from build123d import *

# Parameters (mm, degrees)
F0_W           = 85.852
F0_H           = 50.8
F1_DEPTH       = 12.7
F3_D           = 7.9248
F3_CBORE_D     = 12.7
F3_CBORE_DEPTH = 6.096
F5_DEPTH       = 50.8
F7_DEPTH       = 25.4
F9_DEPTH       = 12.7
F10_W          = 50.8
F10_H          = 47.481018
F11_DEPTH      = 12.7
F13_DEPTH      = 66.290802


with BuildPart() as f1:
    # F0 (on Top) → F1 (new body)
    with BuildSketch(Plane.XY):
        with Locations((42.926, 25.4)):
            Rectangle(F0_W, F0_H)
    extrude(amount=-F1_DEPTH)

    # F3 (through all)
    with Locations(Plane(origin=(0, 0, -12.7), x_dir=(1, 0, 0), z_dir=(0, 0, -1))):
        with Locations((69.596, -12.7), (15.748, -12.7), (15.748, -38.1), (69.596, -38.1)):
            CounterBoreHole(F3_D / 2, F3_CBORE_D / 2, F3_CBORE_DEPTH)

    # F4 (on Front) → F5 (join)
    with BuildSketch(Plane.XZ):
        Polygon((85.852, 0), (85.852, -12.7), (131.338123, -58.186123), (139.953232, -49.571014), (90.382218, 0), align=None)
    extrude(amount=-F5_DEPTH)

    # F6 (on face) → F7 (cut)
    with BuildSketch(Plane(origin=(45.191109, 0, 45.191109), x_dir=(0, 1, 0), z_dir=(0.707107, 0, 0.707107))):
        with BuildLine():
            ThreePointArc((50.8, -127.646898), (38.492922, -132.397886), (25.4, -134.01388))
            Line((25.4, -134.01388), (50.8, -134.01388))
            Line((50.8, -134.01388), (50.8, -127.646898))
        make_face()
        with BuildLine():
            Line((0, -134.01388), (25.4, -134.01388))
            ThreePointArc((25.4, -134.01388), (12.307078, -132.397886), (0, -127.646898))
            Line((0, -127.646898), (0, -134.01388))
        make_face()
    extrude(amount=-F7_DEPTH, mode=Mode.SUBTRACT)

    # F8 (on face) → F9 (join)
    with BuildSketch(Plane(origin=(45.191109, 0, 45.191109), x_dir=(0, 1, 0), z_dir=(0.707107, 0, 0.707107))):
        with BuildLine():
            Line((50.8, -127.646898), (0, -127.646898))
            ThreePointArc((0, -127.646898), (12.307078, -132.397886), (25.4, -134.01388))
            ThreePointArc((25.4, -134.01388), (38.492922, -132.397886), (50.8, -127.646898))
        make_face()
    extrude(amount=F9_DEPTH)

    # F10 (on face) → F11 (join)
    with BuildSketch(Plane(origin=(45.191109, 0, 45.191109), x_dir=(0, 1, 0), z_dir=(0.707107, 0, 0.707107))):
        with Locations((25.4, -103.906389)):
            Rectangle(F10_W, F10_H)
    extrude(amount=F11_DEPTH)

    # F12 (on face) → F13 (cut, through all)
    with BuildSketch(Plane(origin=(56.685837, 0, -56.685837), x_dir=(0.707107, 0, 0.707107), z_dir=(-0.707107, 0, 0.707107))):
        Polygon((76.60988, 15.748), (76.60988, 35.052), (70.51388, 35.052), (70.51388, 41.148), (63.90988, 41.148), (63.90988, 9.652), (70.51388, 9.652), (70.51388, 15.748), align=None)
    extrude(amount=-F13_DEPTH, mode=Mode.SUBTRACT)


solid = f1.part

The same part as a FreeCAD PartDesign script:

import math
import FreeCAD as App
import Part
import Sketcher
Q = App.Units.Quantity

doc = App.newDocument("Part")
params = doc.addObject("Spreadsheet::Sheet", "Params")
for row, (alias, value) in enumerate([
    ("sketch1_height", "2 in"),
    ("sketch1_width", "3.38 in"),
    ("pad1_length", "0.5 in"),
    ("sketch2_diameter", "0.312 in"),
    ("hole_diameter", "0.312 in"),
    ("hole_cbore_diameter", "0.5 in"),
    ("hole_cbore_depth", "0.24 in"),
    ("sketch3_height", "0.5 in"),
    ("sketch3_length", "2.76 in"),
    ("pad2_length", "2 in"),
    ("sketch4_width", "1 in"),
    ("pocket1_length", "1 in"),
    ("sketch5_width", "2 in"),
    ("pad3_length", "0.5 in"),
    ("sketch6_width", "2 in"),
    ("pad4_length", "0.5 in"),
    ("sketch7_width", "0.24 in"),
    ("sketch7_width2", "0.26 in"),
], start=1):
    params.set(f"A{row}", alias)
    params.set(f"B{row}", "=" + value)
    params.setAlias(f"B{row}", alias)

body = doc.addObject("PartDesign::Body", "Body")

sketch1 = doc.addObject("Sketcher::SketchObject", "Sketch")
body.addObject(sketch1)
sketch1.AttachmentSupport = (doc.XY_Plane, [""])
sketch1.MapMode = "FlatFace"
sketch1.addGeometry(Part.LineSegment(App.Vector(0, 51, 0), App.Vector(0, 0, 0)), False)
sketch1.addGeometry(Part.LineSegment(App.Vector(0, 0, 0), App.Vector(86, 0, 0)), False)
sketch1.addGeometry(Part.LineSegment(App.Vector(86, 0, 0), App.Vector(86, 51, 0)), False)
sketch1.addGeometry(Part.LineSegment(App.Vector(86, 51, 0), App.Vector(0, 51, 0)), False)
sketch1.addConstraint(Sketcher.Constraint("Coincident", 0, 2, 1, 1))
sketch1.addConstraint(Sketcher.Constraint("Coincident", 1, 2, 2, 1))
sketch1.addConstraint(Sketcher.Constraint("Coincident", 2, 2, 3, 1))
sketch1.addConstraint(Sketcher.Constraint("Coincident", 3, 2, 0, 1))
sketch1.addConstraint(Sketcher.Constraint("Vertical", 0))
sketch1.addConstraint(Sketcher.Constraint("Horizontal", 1))
sketch1.addConstraint(Sketcher.Constraint("Vertical", 2))
sketch1.addConstraint(Sketcher.Constraint("Horizontal", 3))
sketch1.addConstraint(Sketcher.Constraint("Coincident", 0, 2, -1, 1))
sketch1.addConstraint(Sketcher.Constraint("DistanceY", 0, 2, 0, 1, Q("2 in")))
sketch1.addConstraint(Sketcher.Constraint("DistanceX", 1, 1, 1, 2, Q("3.38 in")))
sketch1.setExpression("Constraints[9]", "Params.sketch1_height")
sketch1.setExpression("Constraints[10]", "Params.sketch1_width")
pad1 = doc.addObject("PartDesign::Pad", "Pad")
body.addObject(pad1)
pad1.Profile = sketch1
pad1.setExpression("Length", "Params.pad1_length")
pad1.Reversed = True

sketch2 = doc.addObject("Sketcher::SketchObject", "Sketch001")
body.addObject(sketch2)
sketch2.AttachmentSupport = (doc.XY_Plane, [""])
sketch2.MapMode = "FlatFace"
sketch2.AttachmentOffset = App.Placement(App.Vector(0, 0, -0.5 * 25.4), App.Rotation())
sketch2.addGeometry(Part.Circle(App.Vector(69.6, 12.7, 0), App.Vector(0, 0, 1), 4), False)
sketch2.addGeometry(Part.Circle(App.Vector(15.7, 12.7, 0), App.Vector(0, 0, 1), 4), False)
sketch2.addGeometry(Part.Circle(App.Vector(15.7, 38.1, 0), App.Vector(0, 0, 1), 4), False)
sketch2.addGeometry(Part.Circle(App.Vector(69.6, 38.1, 0), App.Vector(0, 0, 1), 4), False)
sketch2.addConstraint(Sketcher.Constraint("Equal", 0, 1))
sketch2.addConstraint(Sketcher.Constraint("Equal", 1, 2))
sketch2.addConstraint(Sketcher.Constraint("Equal", 2, 3))
sketch2.addConstraint(Sketcher.Constraint("Horizontal", 0, 3, 1, 3))
sketch2.addConstraint(Sketcher.Constraint("Horizontal", 2, 3, 3, 3))
sketch2.addConstraint(Sketcher.Constraint("Vertical", 1, 3, 2, 3))
sketch2.addConstraint(Sketcher.Constraint("Vertical", 0, 3, 3, 3))
sketch2.addConstraint(Sketcher.Constraint("Diameter", 0, Q("0.312 in")))
sketch2.addConstraint(Sketcher.Constraint("DistanceY", 1, 3, 2, 3, Q("1 in")))
sketch2.addConstraint(Sketcher.Constraint("DistanceY", -1, 1, 0, 3, Q("0.5 in")))
sketch2.addConstraint(Sketcher.Constraint("DistanceX", -1, 1, 0, 3, Q("2.74 in")))
sketch2.addConstraint(Sketcher.Constraint("DistanceX", -1, 1, 1, 3, Q("0.62 in")))
sketch2.setExpression("Constraints[7]", "Params.sketch2_diameter")
doc.recompute()
hole = doc.addObject("PartDesign::Hole", "Hole")
body.addObject(hole)
hole.Profile = sketch2
hole.ThreadType = "None"
hole.setExpression("Diameter", "Params.hole_diameter")
hole.DepthType = "ThroughAll"
hole.HoleCutType = "Counterbore"
hole.setExpression("HoleCutDiameter", "Params.hole_cbore_diameter")
hole.setExpression("HoleCutDepth", "Params.hole_cbore_depth")
hole.Reversed = True

sketch3 = doc.addObject("Sketcher::SketchObject", "Sketch002")
body.addObject(sketch3)
sketch3.AttachmentSupport = (doc.XZ_Plane, [""])
sketch3.MapMode = "FlatFace"
sketch3.addGeometry(Part.LineSegment(App.Vector(85.9, 0, 0), App.Vector(85.9, -12.7, 0)), False)
sketch3.addGeometry(Part.LineSegment(App.Vector(85.9, -12.7, 0), App.Vector(131.3, -58.2, 0)), False)
sketch3.addGeometry(Part.LineSegment(App.Vector(131.3, -58.2, 0), App.Vector(140, -49.6, 0)), False)
sketch3.addGeometry(Part.LineSegment(App.Vector(140, -49.6, 0), App.Vector(90.4, 0, 0)), False)
sketch3.addGeometry(Part.LineSegment(App.Vector(90.4, 0, 0), App.Vector(85.9, 0, 0)), False)
sketch3.addConstraint(Sketcher.Constraint("Coincident", 0, 2, 1, 1))
sketch3.addConstraint(Sketcher.Constraint("Coincident", 1, 2, 2, 1))
sketch3.addConstraint(Sketcher.Constraint("Coincident", 2, 2, 3, 1))
sketch3.addConstraint(Sketcher.Constraint("Coincident", 3, 2, 4, 1))
sketch3.addConstraint(Sketcher.Constraint("Coincident", 4, 2, 0, 1))
sketch3.addConstraint(Sketcher.Constraint("Vertical", 0))
sketch3.addConstraint(Sketcher.Constraint("Horizontal", 4))
sketch3.addConstraint(Sketcher.Constraint("PointOnObject", 3, 2, -1))
sketch3.addConstraint(Sketcher.Constraint("Perpendicular", 1, 2))
sketch3.addConstraint(Sketcher.Constraint("Perpendicular", 2, 3))
sketch3.addConstraint(Sketcher.Constraint("DistanceY", 0, 2, 0, 1, Q("0.5 in")))
sketch3.addConstraint(Sketcher.Constraint("Angle", 1, Q("-45 deg")))
sketch3.addConstraint(Sketcher.Constraint("Distance", 3, Q("2.76 in")))
sketch3.addConstraint(Sketcher.Constraint("DistanceX", -1, 1, 0, 2, Q("3.38 in")))
sketch3.addConstraint(Sketcher.Constraint("DistanceX", 4, 2, 4, 1, Q("4.530218 mm")))
sketch3.setExpression("Constraints[10]", "Params.sketch3_height")
sketch3.setExpression("Constraints[12]", "Params.sketch3_length")
pad2 = doc.addObject("PartDesign::Pad", "Pad001")
body.addObject(pad2)
pad2.Profile = sketch3
pad2.setExpression("Length", "Params.pad2_length")
pad2.Reversed = True

sketch4 = doc.addObject("Sketcher::SketchObject", "Sketch003")
body.addObject(sketch4)
sketch4.Placement = App.Placement(App.Vector(45.191109, 0, 45.191109), App.Rotation(App.Vector(0, 1, 0), App.Vector(-0.707106781, 0, 0.707106781), App.Vector(0.707106781, 0, 0.707106781), "ZXY"))
sketch4.addGeometry(Part.ArcOfCircle(Part.Circle(App.Vector(25, -80, 0), App.Vector(0, 0, 1), 54), math.radians(-90), math.radians(-62)), False)
sketch4.addGeometry(Part.LineSegment(App.Vector(25, -134, 0), App.Vector(51, -134, 0)), False)
sketch4.addGeometry(Part.LineSegment(App.Vector(51, -134, 0), App.Vector(51, -128, 0)), False)
sketch4.addGeometry(Part.LineSegment(App.Vector(0, -134, 0), App.Vector(25, -134, 0)), False)
sketch4.addGeometry(Part.ArcOfCircle(Part.Circle(App.Vector(25, -80, 0), App.Vector(0, 0, 1), 54), math.radians(-118), math.radians(-90)), False)
sketch4.addGeometry(Part.LineSegment(App.Vector(0, -128, 0), App.Vector(0, -134, 0)), False)
sketch4.addConstraint(Sketcher.Constraint("Tangent", 0, 1, 1, 1))
sketch4.addConstraint(Sketcher.Constraint("Coincident", 1, 2, 2, 1))
sketch4.addConstraint(Sketcher.Constraint("Coincident", 2, 2, 0, 2))
sketch4.addConstraint(Sketcher.Constraint("Tangent", 3, 2, 4, 2))
sketch4.addConstraint(Sketcher.Constraint("Coincident", 4, 1, 5, 1))
sketch4.addConstraint(Sketcher.Constraint("Coincident", 5, 2, 3, 1))
sketch4.addConstraint(Sketcher.Constraint("Horizontal", 1))
sketch4.addConstraint(Sketcher.Constraint("Vertical", 2))
sketch4.addConstraint(Sketcher.Constraint("Horizontal", 3))
sketch4.addConstraint(Sketcher.Constraint("Vertical", 5))
sketch4.addConstraint(Sketcher.Constraint("Coincident", 4, 3, 0, 3))
sketch4.addConstraint(Sketcher.Constraint("Equal", 0, 4))
sketch4.addConstraint(Sketcher.Constraint("PointOnObject", 4, 1, -2))
sketch4.addConstraint(Sketcher.Constraint("Horizontal", 2, 2, 4, 1))
sketch4.addConstraint(Sketcher.Constraint("DistanceX", 1, 1, 1, 2, Q("1 in")))
sketch4.addConstraint(Sketcher.Constraint("Radius", 0, Q("53.848009 mm")))
sketch4.addConstraint(Sketcher.Constraint("DistanceY", 0, 3, -1, 1, Q("80.165871 mm")))
sketch4.setExpression("Constraints[14]", "Params.sketch4_width")
pocket1 = doc.addObject("PartDesign::Pocket", "Pocket")
body.addObject(pocket1)
pocket1.Profile = sketch4
pocket1.setExpression("Length", "Params.pocket1_length")

sketch5 = doc.addObject("Sketcher::SketchObject", "Sketch004")
body.addObject(sketch5)
sketch5.Placement = App.Placement(App.Vector(45.191109, 0, 45.191109), App.Rotation(App.Vector(0, 1, 0), App.Vector(-0.707106781, 0, 0.707106781), App.Vector(0.707106781, 0, 0.707106781), "ZXY"))
sketch5.addGeometry(Part.LineSegment(App.Vector(51, -128, 0), App.Vector(0, -128, 0)), False)
sketch5.addGeometry(Part.ArcOfCircle(Part.Circle(App.Vector(25, -80, 0), App.Vector(0, 0, 1), 54), math.radians(-118), math.radians(-90)), False)
sketch5.addGeometry(Part.ArcOfCircle(Part.Circle(App.Vector(25, -80, 0), App.Vector(0, 0, 1), 54), math.radians(-90), math.radians(-62)), False)
sketch5.addConstraint(Sketcher.Constraint("Coincident", 0, 2, 1, 1))
sketch5.addConstraint(Sketcher.Constraint("Tangent", 1, 2, 2, 1))
sketch5.addConstraint(Sketcher.Constraint("Coincident", 2, 2, 0, 1))
sketch5.addConstraint(Sketcher.Constraint("Horizontal", 0))
sketch5.addConstraint(Sketcher.Constraint("Equal", 1, 2))
sketch5.addConstraint(Sketcher.Constraint("PointOnObject", 0, 2, -2))
sketch5.addConstraint(Sketcher.Constraint("DistanceX", 0, 2, 0, 1, Q("2 in")))
sketch5.addConstraint(Sketcher.Constraint("DistanceX", -1, 1, 1, 2, Q("1 in")))
sketch5.addConstraint(Sketcher.Constraint("Radius", 1, Q("53.848009 mm")))
sketch5.addConstraint(Sketcher.Constraint("DistanceY", 1, 3, -1, 1, Q("80.165871 mm")))
sketch5.setExpression("Constraints[6]", "Params.sketch5_width")
pad3 = doc.addObject("PartDesign::Pad", "Pad002")
body.addObject(pad3)
pad3.Profile = sketch5
pad3.setExpression("Length", "Params.pad3_length")

sketch6 = doc.addObject("Sketcher::SketchObject", "Sketch005")
body.addObject(sketch6)
sketch6.Placement = App.Placement(App.Vector(45.191109, 0, 45.191109), App.Rotation(App.Vector(0, 1, 0), App.Vector(-0.707106781, 0, 0.707106781), App.Vector(0.707106781, 0, 0.707106781), "ZXY"))
sketch6.addGeometry(Part.LineSegment(App.Vector(0, -80, 0), App.Vector(0, -128, 0)), False)
sketch6.addGeometry(Part.LineSegment(App.Vector(0, -128, 0), App.Vector(51, -128, 0)), False)
sketch6.addGeometry(Part.LineSegment(App.Vector(51, -128, 0), App.Vector(51, -80, 0)), False)
sketch6.addGeometry(Part.LineSegment(App.Vector(51, -80, 0), App.Vector(0, -80, 0)), False)
sketch6.addConstraint(Sketcher.Constraint("Coincident", 0, 2, 1, 1))
sketch6.addConstraint(Sketcher.Constraint("Coincident", 1, 2, 2, 1))
sketch6.addConstraint(Sketcher.Constraint("Coincident", 2, 2, 3, 1))
sketch6.addConstraint(Sketcher.Constraint("Coincident", 3, 2, 0, 1))
sketch6.addConstraint(Sketcher.Constraint("Vertical", 0))
sketch6.addConstraint(Sketcher.Constraint("Horizontal", 1))
sketch6.addConstraint(Sketcher.Constraint("Vertical", 2))
sketch6.addConstraint(Sketcher.Constraint("Horizontal", 3))
sketch6.addConstraint(Sketcher.Constraint("PointOnObject", 0, 2, -2))
sketch6.addConstraint(Sketcher.Constraint("DistanceX", 1, 1, 1, 2, Q("2 in")))
sketch6.addConstraint(Sketcher.Constraint("DistanceY", 0, 2, 0, 1, Q("47.481018 mm")))
sketch6.addConstraint(Sketcher.Constraint("DistanceY", 2, 2, -1, 1, Q("80.16588 mm")))
sketch6.setExpression("Constraints[9]", "Params.sketch6_width")
pad4 = doc.addObject("PartDesign::Pad", "Pad003")
body.addObject(pad4)
pad4.Profile = sketch6
pad4.setExpression("Length", "Params.pad4_length")

sketch7 = doc.addObject("Sketcher::SketchObject", "Sketch006")
body.addObject(sketch7)
sketch7.Placement = App.Placement(App.Vector(56.685837, 0, -56.685837), App.Rotation(App.Vector(0.707106781, 0, 0.707106781), App.Vector(0, 0.999999999, 0), App.Vector(-0.707106781, 0, 0.707106781), "ZXY"))
sketch7.addGeometry(Part.LineSegment(App.Vector(77, 16, 0), App.Vector(77, 35, 0)), False)
sketch7.addGeometry(Part.LineSegment(App.Vector(77, 35, 0), App.Vector(71, 35, 0)), False)
sketch7.addGeometry(Part.LineSegment(App.Vector(71, 35, 0), App.Vector(71, 41, 0)), False)
sketch7.addGeometry(Part.LineSegment(App.Vector(71, 41, 0), App.Vector(64, 41, 0)), False)
sketch7.addGeometry(Part.LineSegment(App.Vector(64, 41, 0), App.Vector(64, 10, 0)), False)
sketch7.addGeometry(Part.LineSegment(App.Vector(64, 10, 0), App.Vector(71, 10, 0)), False)
sketch7.addGeometry(Part.LineSegment(App.Vector(71, 10, 0), App.Vector(71, 16, 0)), False)
sketch7.addGeometry(Part.LineSegment(App.Vector(71, 16, 0), App.Vector(77, 16, 0)), False)
sketch7.addConstraint(Sketcher.Constraint("Coincident", 0, 2, 1, 1))
sketch7.addConstraint(Sketcher.Constraint("Coincident", 1, 2, 2, 1))
sketch7.addConstraint(Sketcher.Constraint("Coincident", 2, 2, 3, 1))
sketch7.addConstraint(Sketcher.Constraint("Coincident", 3, 2, 4, 1))
sketch7.addConstraint(Sketcher.Constraint("Coincident", 4, 2, 5, 1))
sketch7.addConstraint(Sketcher.Constraint("Coincident", 5, 2, 6, 1))
sketch7.addConstraint(Sketcher.Constraint("Coincident", 6, 2, 7, 1))
sketch7.addConstraint(Sketcher.Constraint("Coincident", 7, 2, 0, 1))
sketch7.addConstraint(Sketcher.Constraint("Vertical", 0))
sketch7.addConstraint(Sketcher.Constraint("Horizontal", 1))
sketch7.addConstraint(Sketcher.Constraint("Vertical", 2))
sketch7.addConstraint(Sketcher.Constraint("Horizontal", 3))
sketch7.addConstraint(Sketcher.Constraint("Vertical", 4))
sketch7.addConstraint(Sketcher.Constraint("Horizontal", 5))
sketch7.addConstraint(Sketcher.Constraint("Vertical", 6))
sketch7.addConstraint(Sketcher.Constraint("Horizontal", 7))
sketch7.addConstraint(Sketcher.Constraint("Vertical", 2, 2, 5, 2))
sketch7.addConstraint(Sketcher.Constraint("Equal", 7, 2))
sketch7.addConstraint(Sketcher.Constraint("Equal", 2, 6))
sketch7.addConstraint(Sketcher.Constraint("DistanceY", 4, 2, 1, 2, Q("1 in")))
sketch7.addConstraint(Sketcher.Constraint("DistanceX", 1, 2, 1, 1, Q("0.24 in")))
sketch7.addConstraint(Sketcher.Constraint("DistanceX", 3, 2, 3, 1, Q("0.26 in")))
sketch7.addConstraint(Sketcher.Constraint("DistanceY", -1, 1, 0, 2, Q("1.38 in")))
sketch7.addConstraint(Sketcher.Constraint("DistanceX", -1, 1, 0, 2, Q("76.60988 mm")))
sketch7.setExpression("Constraints[20]", "Params.sketch7_width")
sketch7.setExpression("Constraints[21]", "Params.sketch7_width2")
pocket2 = doc.addObject("PartDesign::Pocket", "Pocket001")
body.addObject(pocket2)
pocket2.Profile = sketch7
pocket2.Type = "ThroughAll"

doc.recompute()
